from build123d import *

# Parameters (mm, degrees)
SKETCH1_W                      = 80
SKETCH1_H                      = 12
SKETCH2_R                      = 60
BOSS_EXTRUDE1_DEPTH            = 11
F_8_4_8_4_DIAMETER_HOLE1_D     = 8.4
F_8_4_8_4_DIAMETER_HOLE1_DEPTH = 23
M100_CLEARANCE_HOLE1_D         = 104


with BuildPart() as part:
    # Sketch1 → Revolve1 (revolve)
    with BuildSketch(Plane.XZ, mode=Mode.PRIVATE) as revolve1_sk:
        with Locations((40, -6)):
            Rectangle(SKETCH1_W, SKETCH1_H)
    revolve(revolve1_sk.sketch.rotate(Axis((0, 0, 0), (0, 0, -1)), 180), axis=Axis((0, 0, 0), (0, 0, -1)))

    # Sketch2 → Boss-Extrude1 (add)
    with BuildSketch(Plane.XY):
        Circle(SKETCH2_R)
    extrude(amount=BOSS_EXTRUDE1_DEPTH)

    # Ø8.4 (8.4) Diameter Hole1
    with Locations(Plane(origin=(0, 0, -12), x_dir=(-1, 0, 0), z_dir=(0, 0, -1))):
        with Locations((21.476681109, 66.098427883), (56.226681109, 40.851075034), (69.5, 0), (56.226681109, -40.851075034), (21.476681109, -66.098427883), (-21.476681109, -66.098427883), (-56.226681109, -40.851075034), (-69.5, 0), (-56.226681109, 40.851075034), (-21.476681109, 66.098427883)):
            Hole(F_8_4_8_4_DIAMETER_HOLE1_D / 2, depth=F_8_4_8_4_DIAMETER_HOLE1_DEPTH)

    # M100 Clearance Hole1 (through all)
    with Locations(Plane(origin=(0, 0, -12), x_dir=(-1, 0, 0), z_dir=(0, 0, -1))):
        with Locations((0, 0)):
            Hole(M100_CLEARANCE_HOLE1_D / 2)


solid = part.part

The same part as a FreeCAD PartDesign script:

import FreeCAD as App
import Part
import Sketcher
Q = App.Units.Quantity

doc = App.newDocument("Part")
body = doc.addObject("PartDesign::Body", "Body")

sketch1 = body.newObject("Sketcher::SketchObject", "Sketch")
sketch1.AttachmentSupport = (doc.getObject("XZ_Plane"), [""])
sketch1.MapMode = "FlatFace"
sketch1.addGeometry([
    Part.LineSegment(App.Vector(0, 0, 0), App.Vector(0, -12, 0)),
    Part.LineSegment(App.Vector(0, -12, 0), App.Vector(80, -12, 0)),
    Part.LineSegment(App.Vector(80, -12, 0), App.Vector(80, 0, 0)),
    Part.LineSegment(App.Vector(80, 0, 0), App.Vector(0, 0, 0)),
], False)
sketch1.addConstraint([
    Sketcher.Constraint("Coincident", 0, 2, 1, 1),
    Sketcher.Constraint("Coincident", 1, 2, 2, 1),
    Sketcher.Constraint("Coincident", 2, 2, 3, 1),
    Sketcher.Constraint("Coincident", 3, 2, 0, 1),
    Sketcher.Constraint("Vertical", 0),
    Sketcher.Constraint("Horizontal", 1),
    Sketcher.Constraint("Vertical", 2),
    Sketcher.Constraint("Horizontal", 3),
    Sketcher.Constraint("Coincident", 3, 2, -1, 1),
    Sketcher.Constraint("DistanceX", 1, 1, 1, 2, Q("80 mm")),
    Sketcher.Constraint("DistanceY", 0, 2, 0, 1, Q("12 mm")),
])
revolution = body.newObject("PartDesign::Revolution", "Revolution")
revolution.Profile = sketch1
revolution.ReferenceAxis = (sketch1, ["V_Axis"])
revolution.Angle = 360

sketch2 = body.newObject("Sketcher::SketchObject", "Sketch001")
sketch2.AttachmentSupport = (doc.getObject("XY_Plane"), [""])
sketch2.MapMode = "FlatFace"
sketch2.addGeometry(Part.Circle(App.Vector(0, 0, 0), App.Vector(0, 0, 1), 60), False)
sketch2.addConstraint([
    Sketcher.Constraint("Coincident", 0, 3, -1, 1),
    Sketcher.Constraint("Diameter", 0, Q("120 mm")),
])
pad1 = body.newObject("PartDesign::Pad", "Pad")
pad1.Profile = sketch2
pad1.Length = 11

sketch3 = body.newObject("Sketcher::SketchObject", "Sketch002")
sketch3.AttachmentSupport = (doc.getObject("XY_Plane"), [""])
sketch3.MapMode = "FlatFace"
sketch3.AttachmentOffset = App.Placement(App.Vector(0, 0, -12), App.Rotation())
sketch3.addGeometry([
    Part.Circle(App.Vector(-21.5, 66.1, 0), App.Vector(0, 0, 1), 4.2),
    Part.Circle(App.Vector(-56.2, 40.9, 0), App.Vector(0, 0, 1), 4.2),
    Part.Circle(App.Vector(-69.5, 0, 0), App.Vector(0, 0, 1), 4.2),
    Part.Circle(App.Vector(-56.2, -40.9, 0), App.Vector(0, 0, 1), 4.2),
    Part.Circle(App.Vector(-21.5, -66.1, 0), App.Vector(0, 0, 1), 4.2),
    Part.Circle(App.Vector(21.5, -66.1, 0), App.Vector(0, 0, 1), 4.2),
    Part.Circle(App.Vector(56.2, -40.9, 0), App.Vector(0, 0, 1), 4.2),
    Part.Circle(App.Vector(69.5, 0, 0), App.Vector(0, 0, 1), 4.2),
    Part.Circle(App.Vector(56.2, 40.9, 0), App.Vector(0, 0, 1), 4.2),
    Part.Circle(App.Vector(21.5, 66.1, 0), App.Vector(0, 0, 1), 4.2),
], False)
sketch3.addConstraint([
    Sketcher.Constraint("Equal", 0, 1),
    Sketcher.Constraint("Equal", 1, 2),
    Sketcher.Constraint("Equal", 2, 3),
    Sketcher.Constraint("Equal", 3, 4),
    Sketcher.Constraint("Equal", 4, 5),
    Sketcher.Constraint("Equal", 5, 6),
    Sketcher.Constraint("Equal", 6, 7),
    Sketcher.Constraint("Equal", 7, 8),
    Sketcher.Constraint("Equal", 8, 9),
    Sketcher.Constraint("Symmetric", 0, 3, 5, 3, -1, 1),
    Sketcher.Constraint("Symmetric", 1, 3, 6, 3, -1, 1),
    Sketcher.Constraint("Symmetric", 2, 3, 7, 3, -1, 1),
    Sketcher.Constraint("Symmetric", 3, 3, 8, 3, -1, 1),
    Sketcher.Constraint("Symmetric", 4, 3, 9, 3, -1, 1),
    Sketcher.Constraint("Symmetric", 4, 3, 5, 3, -2),
    Sketcher.Constraint("Symmetric", 3, 3, 6, 3, -2),
    Sketcher.Constraint("PointOnObject", 2, 3, -1),
    Sketcher.Constraint("Diameter", 0, Q("8.4 mm")),
    Sketcher.Constraint("DistanceX", 2, 3, -1, 1, Q("69.5 mm")),
    Sketcher.Constraint("DistanceX", 1, 3, 0, 3, Q("34.75 mm")),
    Sketcher.Constraint("DistanceX", 0, 3, -1, 1, Q("21.476681 mm")),
    Sketcher.Constraint("DistanceY", 3, 3, 1, 3, Q("81.70215 mm")),
    Sketcher.Constraint("DistanceY", -1, 1, 0, 3, Q("66.098428 mm")),
])
doc.recompute()
hole = body.newObject("PartDesign::Hole", "Hole")
hole.Profile = sketch3
hole.ThreadType = "None"
hole.Diameter = 8.4
hole.DepthType = "Dimension"
hole.Depth = 23
hole.DrillPoint = "Flat"
hole.Reversed = True

sketch4 = body.newObject("Sketcher::SketchObject", "Sketch003")
sketch4.AttachmentSupport = (doc.getObject("XY_Plane"), [""])
sketch4.MapMode = "FlatFace"
sketch4.AttachmentOffset = App.Placement(App.Vector(0, 0, -12), App.Rotation())
sketch4.addGeometry(Part.Circle(App.Vector(0, 0, 0), App.Vector(0, 0, 1), 52), False)
sketch4.addConstraint([
    Sketcher.Constraint("Coincident", 0, 3, -1, 1),
    Sketcher.Constraint("Diameter", 0, Q("104 mm")),
])
doc.recompute()
hole2 = body.newObject("PartDesign::Hole", "Hole001")
hole2.Profile = sketch4
hole2.ThreadType = "None"
hole2.Diameter = 104
hole2.DepthType = "ThroughAll"
hole2.Reversed = True

doc.recompute()
